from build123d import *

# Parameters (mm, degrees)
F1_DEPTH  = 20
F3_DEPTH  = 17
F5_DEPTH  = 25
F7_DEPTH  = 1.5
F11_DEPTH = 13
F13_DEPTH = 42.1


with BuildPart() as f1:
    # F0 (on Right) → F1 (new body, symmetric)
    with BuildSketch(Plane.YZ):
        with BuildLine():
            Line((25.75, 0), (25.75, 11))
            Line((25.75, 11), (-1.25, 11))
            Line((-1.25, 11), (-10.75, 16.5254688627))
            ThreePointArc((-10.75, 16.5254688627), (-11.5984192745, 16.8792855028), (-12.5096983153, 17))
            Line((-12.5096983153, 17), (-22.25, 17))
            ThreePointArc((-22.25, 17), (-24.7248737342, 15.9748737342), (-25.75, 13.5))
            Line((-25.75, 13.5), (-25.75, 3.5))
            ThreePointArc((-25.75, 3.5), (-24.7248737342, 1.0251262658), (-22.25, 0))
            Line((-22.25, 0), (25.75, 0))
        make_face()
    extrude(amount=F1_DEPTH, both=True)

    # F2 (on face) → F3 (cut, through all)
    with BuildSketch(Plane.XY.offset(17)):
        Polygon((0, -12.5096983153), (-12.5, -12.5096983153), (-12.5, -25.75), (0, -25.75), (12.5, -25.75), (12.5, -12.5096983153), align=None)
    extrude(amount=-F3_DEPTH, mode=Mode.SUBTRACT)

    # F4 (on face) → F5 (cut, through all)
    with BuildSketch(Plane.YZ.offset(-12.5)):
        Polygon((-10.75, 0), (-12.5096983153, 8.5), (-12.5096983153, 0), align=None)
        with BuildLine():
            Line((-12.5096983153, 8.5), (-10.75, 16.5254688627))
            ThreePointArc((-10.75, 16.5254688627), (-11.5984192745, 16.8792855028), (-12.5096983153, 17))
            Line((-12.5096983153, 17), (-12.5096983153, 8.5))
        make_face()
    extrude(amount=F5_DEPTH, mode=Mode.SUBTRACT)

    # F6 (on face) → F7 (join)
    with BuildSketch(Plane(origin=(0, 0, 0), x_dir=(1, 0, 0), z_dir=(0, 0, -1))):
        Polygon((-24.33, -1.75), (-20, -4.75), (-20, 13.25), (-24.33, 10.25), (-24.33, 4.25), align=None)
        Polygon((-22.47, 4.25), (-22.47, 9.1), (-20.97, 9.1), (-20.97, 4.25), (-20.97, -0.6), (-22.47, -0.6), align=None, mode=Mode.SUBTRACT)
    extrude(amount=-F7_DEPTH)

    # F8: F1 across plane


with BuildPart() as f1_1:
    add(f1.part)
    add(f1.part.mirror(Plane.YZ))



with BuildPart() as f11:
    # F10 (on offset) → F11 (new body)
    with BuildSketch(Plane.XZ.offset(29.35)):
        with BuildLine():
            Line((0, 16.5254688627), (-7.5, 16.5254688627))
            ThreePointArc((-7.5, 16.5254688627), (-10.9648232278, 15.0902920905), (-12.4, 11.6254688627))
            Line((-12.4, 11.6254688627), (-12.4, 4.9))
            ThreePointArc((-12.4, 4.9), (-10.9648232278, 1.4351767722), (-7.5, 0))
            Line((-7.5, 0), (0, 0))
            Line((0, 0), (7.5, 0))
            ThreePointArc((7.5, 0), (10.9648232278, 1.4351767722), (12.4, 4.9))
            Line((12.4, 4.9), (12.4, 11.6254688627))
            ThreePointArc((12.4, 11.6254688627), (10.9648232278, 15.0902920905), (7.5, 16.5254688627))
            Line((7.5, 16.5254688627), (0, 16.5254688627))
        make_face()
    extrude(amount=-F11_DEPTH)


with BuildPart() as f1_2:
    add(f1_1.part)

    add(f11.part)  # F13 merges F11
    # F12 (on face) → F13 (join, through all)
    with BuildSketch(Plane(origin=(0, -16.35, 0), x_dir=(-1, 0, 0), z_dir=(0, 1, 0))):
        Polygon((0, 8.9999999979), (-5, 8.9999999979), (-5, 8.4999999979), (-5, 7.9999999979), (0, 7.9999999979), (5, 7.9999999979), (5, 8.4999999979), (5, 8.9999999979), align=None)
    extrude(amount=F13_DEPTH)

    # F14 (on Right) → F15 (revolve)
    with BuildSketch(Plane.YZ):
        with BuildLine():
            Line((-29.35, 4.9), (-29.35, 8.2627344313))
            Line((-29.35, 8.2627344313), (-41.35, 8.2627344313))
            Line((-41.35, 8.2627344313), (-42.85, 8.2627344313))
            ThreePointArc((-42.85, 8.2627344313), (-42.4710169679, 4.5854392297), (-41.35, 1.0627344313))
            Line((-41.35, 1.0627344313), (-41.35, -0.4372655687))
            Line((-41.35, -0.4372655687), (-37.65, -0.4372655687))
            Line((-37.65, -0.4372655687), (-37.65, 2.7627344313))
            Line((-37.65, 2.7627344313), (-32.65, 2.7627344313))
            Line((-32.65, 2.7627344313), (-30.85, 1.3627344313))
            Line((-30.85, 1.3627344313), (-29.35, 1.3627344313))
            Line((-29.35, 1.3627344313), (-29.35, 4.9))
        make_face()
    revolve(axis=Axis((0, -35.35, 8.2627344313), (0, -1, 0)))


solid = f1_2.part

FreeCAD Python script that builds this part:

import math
import FreeCAD as App
import Part
import Sketcher
from FreeCAD import Vector
Q = App.Units.Quantity

doc = App.newDocument("Part")
params = doc.addObject("Spreadsheet::Sheet", "Params")
for row, (alias, value) in enumerate([
    ("sketch1_radius", "3.5 mm"),
    ("sketch1_width", "27 mm"),
    ("sketch1_width2", "48 mm"),
    ("sketch1_height", "11 mm"),
    ("sketch1_height2", "10 mm"),
    ("pad1_length", "40 mm"),
    ("sketch2_width", "25 mm"),
    ("sketch3_radius", "3.5 mm"),
    ("sketch3_height", "8.5 mm"),
    ("pocket2_length", "25 mm"),
    ("sketch4_height", "18 mm"),
    ("sketch4_height2", "12 mm"),
    ("sketch4_width", "1.5 mm"),
    ("sketch4_height3", "9.7 mm"),
    ("pad2_length", "1.5 mm"),
    ("sketch5_radius", "4.9 mm"),
    ("sketch5_width", "15 mm"),
    ("pad3_length", "13 mm"),
    ("sketch6_width", "10 mm"),
    ("sketch6_height", "1 mm"),
    ("sketch7_width", "5 mm"),
    ("sketch7_radius", "18.03 mm"),
    ("sketch7_width2", "13.5 mm"),
    ("sketch7_width3", "3.7 mm"),
    ("sketch7_width4", "1.5 mm"),
    ("revolution_angle", "360 deg"),
], start=1):
    params.set(f"A{row}", alias)
    params.set(f"B{row}", "=" + value)
    params.setAlias(f"B{row}", alias)

body = doc.addObject("PartDesign::Body", "Body")

sketch1 = body.newObject("Sketcher::SketchObject", "Sketch")
sketch1.AttachmentSupport = (doc.getObject("YZ_Plane"), [""])
sketch1.MapMode = "FlatFace"
sketch1.addGeometry([
    Part.LineSegment(Vector(25.8, 0, 0), Vector(25.8, 11, 0)),
    Part.LineSegment(Vector(25.8, 11, 0), Vector(-1.2, 11, 0)),
    Part.LineSegment(Vector(-1.2, 11, 0), Vector(-10.8, 16.5, 0)),
    Part.ArcOfCircle(Part.Circle(Vector(-12.5, 13.5, 0), Vector(0, 0, 1), 3.5), math.radians(60), math.radians(90)),
    Part.LineSegment(Vector(-12.5, 17, 0), Vector(-22.2, 17, 0)),
    Part.ArcOfCircle(Part.Circle(Vector(-22.2, 13.5, 0), Vector(0, 0, 1), 3.5), math.radians(90), math.radians(180)),
    Part.LineSegment(Vector(-25.8, 13.5, 0), Vector(-25.8, 3.5, 0)),
    Part.ArcOfCircle(Part.Circle(Vector(-22.2, 3.5, 0), Vector(0, 0, 1), 3.5), math.radians(180), math.radians(270)),
    Part.LineSegment(Vector(-22.2, 0, 0), Vector(25.8, 0, 0)),
], False)
sketch1.addConstraint([
    Sketcher.Constraint("Coincident", 0, 2, 1, 1),
    Sketcher.Constraint("Coincident", 1, 2, 2, 1),
    Sketcher.Constraint("Tangent", 2, 2, 3, 1),
    Sketcher.Constraint("Tangent", 3, 2, 4, 1),
    Sketcher.Constraint("Tangent", 4, 2, 5, 1),
    Sketcher.Constraint("Tangent", 5, 2, 6, 1),
    Sketcher.Constraint("Tangent", 6, 2, 7, 1),
    Sketcher.Constraint("Tangent", 7, 2, 8, 1),
    Sketcher.Constraint("Coincident", 8, 2, 0, 1),
    Sketcher.Constraint("Vertical", 0),
    Sketcher.Constraint("Horizontal", 1),
    Sketcher.Constraint("Horizontal", 4),
    Sketcher.Constraint("Vertical", 6),
    Sketcher.Constraint("Horizontal", 8),
    Sketcher.Constraint("Equal", 3, 5),
    Sketcher.Constraint("Equal", 5, 7),
    Sketcher.Constraint("PointOnObject", 7, 2, -1),
    Sketcher.Constraint("Radius", 3, Q("3.5 mm")),
    Sketcher.Constraint("DistanceX", 1, 2, 1, 1, Q("27 mm")),
    Sketcher.Constraint("DistanceX", 8, 1, 8, 2, Q("48 mm")),
    Sketcher.Constraint("DistanceY", 0, 1, 0, 2, Q("11 mm")),
    Sketcher.Constraint("DistanceY", 6, 2, 6, 1, Q("10 mm")),
    Sketcher.Constraint("DistanceX", 2, 2, 1, 2, Q("9.5 mm")),
    Sketcher.Constraint("DistanceX", 5, 3, -1, 1, Q("22.25 mm")),
])
sketch1.setExpression("Constraints[17]", "Params.sketch1_radius")
sketch1.setExpression("Constraints[18]", "Params.sketch1_width")
sketch1.setExpression("Constraints[19]", "Params.sketch1_width2")
sketch1.setExpression("Constraints[20]", "Params.sketch1_height")
sketch1.setExpression("Constraints[21]", "Params.sketch1_height2")
pad1 = body.newObject("PartDesign::Pad", "Pad")
pad1.Profile = sketch1
pad1.setExpression("Length", "Params.pad1_length")
pad1.Midplane = True

sketch2 = body.newObject("Sketcher::SketchObject", "Sketch001")
sketch2.AttachmentSupport = (doc.getObject("XY_Plane"), [""])
sketch2.MapMode = "FlatFace"
sketch2.AttachmentOffset = App.Placement(Vector(0, 0, 17), App.Rotation())
sketch2.addGeometry([
    Part.LineSegment(Vector(-12, -13, 0), Vector(-12, -26, 0)),
    Part.LineSegment(Vector(-12, -26, 0), Vector(12, -26, 0)),
    Part.LineSegment(Vector(12, -26, 0), Vector(12, -13, 0)),
    Part.LineSegment(Vector(12, -13, 0), Vector(-12, -13, 0)),
], False)
sketch2.addConstraint([
    Sketcher.Constraint("Coincident", 0, 2, 1, 1),
    Sketcher.Constraint("Coincident", 1, 2, 2, 1),
    Sketcher.Constraint("Coincident", 2, 2, 3, 1),
    Sketcher.Constraint("Coincident", 3, 2, 0, 1),
    Sketcher.Constraint("Vertical", 0),
    Sketcher.Constraint("Horizontal", 1),
    Sketcher.Constraint("Vertical", 2),
    Sketcher.Constraint("Horizontal", 3),
    Sketcher.Constraint("DistanceX", 1, 1, 1, 2, Q("25 mm")),
    Sketcher.Constraint("DistanceX", 0, 2, -1, 1, Q("12.5 mm")),
    Sketcher.Constraint("DistanceY", 0, 2, -1, 1, Q("25.75 mm")),
    Sketcher.Constraint("DistanceY", 0, 2, 0, 1, Q("13.240302 mm")),
])
sketch2.setExpression("Constraints[8]", "Params.sketch2_width")
pocket1 = body.newObject("PartDesign::Pocket", "Pocket")
pocket1.Profile = sketch2
pocket1.Type = "ThroughAll"

sketch3 = body.newObject("Sketcher::SketchObject", "Sketch002")
sketch3.AttachmentSupport = (doc.getObject("YZ_Plane"), [""])
sketch3.MapMode = "FlatFace"
sketch3.AttachmentOffset = App.Placement(Vector(0, 0, -12.5), App.Rotation())
sketch3.addGeometry([
    Part.LineSegment(Vector(-10.8, 0, 0), Vector(-12.5, 8.5, 0)),
    Part.LineSegment(Vector(-12.5, 8.5, 0), Vector(-12.5, 0, 0)),
    Part.LineSegment(Vector(-12.5, 0, 0), Vector(-10.8, 0, 0)),
    Part.LineSegment(Vector(-12.5, 8.5, 0), Vector(-10.8, 16.5, 0)),
    Part.ArcOfCircle(Part.Circle(Vector(-12.5, 13.5, 0), Vector(0, 0, 1), 3.5), math.radians(60), math.radians(90)),
    Part.LineSegment(Vector(-12.5, 17, 0), Vector(-12.5, 8.5, 0)),
], False)
sketch3.addConstraint([
    Sketcher.Constraint("Coincident", 0, 2, 1, 1),
    Sketcher.Constraint("Coincident", 1, 2, 2, 1),
    Sketcher.Constraint("Coincident", 2, 2, 0, 1),
    Sketcher.Constraint("Coincident", 3, 2, 4, 1),
    Sketcher.Constraint("Coincident", 4, 2, 5, 1),
    Sketcher.Constraint("Coincident", 5, 2, 3, 1),
    Sketcher.Constraint("Vertical", 1),
    Sketcher.Constraint("Horizontal", 2),
    Sketcher.Constraint("Vertical", 5),
    Sketcher.Constraint("Coincident", 5, 2, 0, 2),
    Sketcher.Constraint("PointOnObject", 1, 2, -1),
    Sketcher.Constraint("Vertical", 4, 3, 0, 2),
    Sketcher.Constraint("Vertical", 2, 2, 3, 2),
    Sketcher.Constraint("Equal", 1, 5),
    Sketcher.Constraint("Radius", 4, Q("3.5 mm")),
    Sketcher.Constraint("DistanceY", 1, 2, 1, 1, Q("8.5 mm")),
    Sketcher.Constraint("DistanceX", 2, 2, -1, 1, Q("10.75 mm")),
    Sketcher.Constraint("DistanceX", 2, 1, 2, 2, Q("1.759698 mm")),
])
sketch3.setExpression("Constraints[14]", "Params.sketch3_radius")
sketch3.setExpression("Constraints[15]", "Params.sketch3_height")
pocket2 = body.newObject("PartDesign::Pocket", "Pocket001")
pocket2.Profile = sketch3
pocket2.setExpression("Length", "Params.pocket2_length")
pocket2.Reversed = True

sketch4 = body.newObject("Sketcher::SketchObject", "Sketch003")
sketch4.AttachmentSupport = (doc.getObject("XY_Plane"), [""])
sketch4.MapMode = "FlatFace"
sketch4.addGeometry([
    Part.LineSegment(Vector(-24.3, 1.8, 0), Vector(-20, 4.8, 0)),
    Part.LineSegment(Vector(-20, 4.8, 0), Vector(-20, -13.2, 0)),
    Part.LineSegment(Vector(-20, -13.2, 0), Vector(-24.3, -10.2, 0)),
    Part.LineSegment(Vector(-24.3, -10.2, 0), Vector(-24.3, 1.8, 0)),
    Part.LineSegment(Vector(-22.5, 0.6, 0), Vector(-22.5, -9.1, 0)),
    Part.LineSegment(Vector(-22.5, -9.1, 0), Vector(-21, -9.1, 0)),
    Part.LineSegment(Vector(-21, -9.1, 0), Vector(-21, 0.6, 0)),
    Part.LineSegment(Vector(-21, 0.6, 0), Vector(-22.5, 0.6, 0)),
], False)
sketch4.addConstraint([
    Sketcher.Constraint("Coincident", 0, 2, 1, 1),
    Sketcher.Constraint("Coincident", 1, 2, 2, 1),
    Sketcher.Constraint("Coincident", 2, 2, 3, 1),
    Sketcher.Constraint("Coincident", 3, 2, 0, 1),
    Sketcher.Constraint("Coincident", 4, 2, 5, 1),
    Sketcher.Constraint("Coincident", 5, 2, 6, 1),
    Sketcher.Constraint("Coincident", 6, 2, 7, 1),
    Sketcher.Constraint("Coincident", 7, 2, 4, 1),
    Sketcher.Constraint("Vertical", 1),
    Sketcher.Constraint("Vertical", 3),
    Sketcher.Constraint("Vertical", 4),
    Sketcher.Constraint("Horizontal", 5),
    Sketcher.Constraint("Vertical", 6),
    Sketcher.Constraint("Horizontal", 7),
    Sketcher.Constraint("Equal", 0, 2),
    Sketcher.Constraint("DistanceY", 1, 2, 1, 1, Q("18 mm")),
    Sketcher.Constraint("DistanceY", 3, 1, 3, 2, Q("12 mm")),
    Sketcher.Constraint("DistanceX", 5, 1, 5, 2, Q("1.5 mm")),
    Sketcher.Constraint("DistanceY", 4, 2, 4, 1, Q("9.7 mm")),
    Sketcher.Constraint("DistanceX", 0, 2, -1, 1, Q("20 mm")),
    Sketcher.Constraint("DistanceY", 4, 2, -1, 1, Q("9.1 mm")),
    Sketcher.Constraint("DistanceY", -1, 1, 0, 2, Q("4.75 mm")),
    Sketcher.Constraint("DistanceX", 2, 2, -1, 1, Q("24.33 mm")),
    Sketcher.Constraint("DistanceX", 4, 2, -1, 1, Q("22.47 mm")),
])
sketch4.setExpression("Constraints[15]", "Params.sketch4_height")
sketch4.setExpression("Constraints[16]", "Params.sketch4_height2")
sketch4.setExpression("Constraints[17]", "Params.sketch4_width")
sketch4.setExpression("Constraints[18]", "Params.sketch4_height3")
pad2 = body.newObject("PartDesign::Pad", "Pad001")
pad2.Profile = sketch4
pad2.setExpression("Length", "Params.pad2_length")
body2 = doc.addObject("PartDesign::Body", "Body001")
doc.recompute()

body2.BaseFeature = body
doc.recompute()

mirroring = doc.addObject("Part::Mirroring", "Mirroring")
mirroring.Source = body
mirroring.Base = Vector(0, 0, 0)
mirroring.Normal = Vector(1, 0, 0)
body3 = doc.addObject("PartDesign::Body", "Body002")
body3.BaseFeature = mirroring
boolean = body2.newObject("PartDesign::Boolean", "Boolean")
boolean.Type = "Fuse"
boolean.addObjects([body3])
doc.recompute()
body4 = doc.addObject("PartDesign::Body", "Body003")

sketch5 = body4.newObject("Sketcher::SketchObject", "Sketch004")
sketch5.AttachmentSupport = (doc.getObject("XZ_Plane003"), [""])
sketch5.MapMode = "FlatFace"
sketch5.AttachmentOffset = App.Placement(Vector(0, 0, 29.35), App.Rotation())
sketch5.addGeometry([
    Part.ArcOfCircle(Part.Circle(Vector(-7.5, 11.6, 0), Vector(0, 0, 1), 4.9), math.radians(90), math.radians(180)),
    Part.LineSegment(Vector(-12.4, 11.6, 0), Vector(-12.4, 4.9, 0)),
    Part.ArcOfCircle(Part.Circle(Vector(-7.5, 4.9, 0), Vector(0, 0, 1), 4.9), math.radians(180), math.radians(270)),
    Part.LineSegment(Vector(-7.5, 0, 0), Vector(7.5, 0, 0)),
    Part.ArcOfCircle(Part.Circle(Vector(7.5, 4.9, 0), Vector(0, 0, 1), 4.9), math.radians(-90), math.radians(0)),
    Part.LineSegment(Vector(12.4, 4.9, 0), Vector(12.4, 11.6, 0)),
    Part.ArcOfCircle(Part.Circle(Vector(7.5, 11.6, 0), Vector(0, 0, 1), 4.9), math.radians(0), math.radians(90)),
    Part.LineSegment(Vector(7.5, 16.5, 0), Vector(-7.5, 16.5, 0)),
], False)
sketch5.addConstraint([
    Sketcher.Constraint("Tangent", 0, 2, 1, 1),
    Sketcher.Constraint("Tangent", 1, 2, 2, 1),
    Sketcher.Constraint("Tangent", 2, 2, 3, 1),
    Sketcher.Constraint("Tangent", 3, 2, 4, 1),
    Sketcher.Constraint("Tangent", 4, 2, 5, 1),
    Sketcher.Constraint("Tangent", 5, 2, 6, 1),
    Sketcher.Constraint("Tangent", 6, 2, 7, 1),
    Sketcher.Constraint("Tangent", 7, 2, 0, 1),
    Sketcher.Constraint("Vertical", 1),
    Sketcher.Constraint("Horizontal", 3),
    Sketcher.Constraint("Vertical", 5),
    Sketcher.Constraint("Horizontal", 7),
    Sketcher.Constraint("Equal", 0, 2),
    Sketcher.Constraint("Equal", 2, 4),
    Sketcher.Constraint("Equal", 4, 6),
    Sketcher.Constraint("Symmetric", 2, 2, 3, 2, -1, 1),
    Sketcher.Constraint("Radius", 0, Q("4.9 mm")),
    Sketcher.Constraint("DistanceX", 3, 1, 3, 2, Q("15 mm")),
    Sketcher.Constraint("DistanceY", 1, 2, 1, 1, Q("6.725469 mm")),
])
sketch5.setExpression("Constraints[16]", "Params.sketch5_radius")
sketch5.setExpression("Constraints[17]", "Params.sketch5_width")
pad3 = body4.newObject("PartDesign::Pad", "Pad002")
pad3.Profile = sketch5
pad3.setExpression("Length", "Params.pad3_length")
pad3.Reversed = True
body2.AllowCompound = True
doc.recompute()

boolean2 = body2.newObject("PartDesign::Boolean", "Boolean001")
boolean2.Type = "Fuse"
boolean2.addObjects([body4])

sketch6 = body2.newObject("Sketcher::SketchObject", "Sketch005")
sketch6.AttachmentSupport = (doc.getObject("XZ_Plane001"), [""])
sketch6.MapMode = "FlatFace"
sketch6.AttachmentOffset = App.Placement(Vector(0, 0, 16.35), App.Rotation())
sketch6.addGeometry([
    Part.LineSegment(Vector(5, 9, 0), Vector(5, 8, 0)),
    Part.LineSegment(Vector(5, 8, 0), Vector(-5, 8, 0)),
    Part.LineSegment(Vector(-5, 8, 0), Vector(-5, 9, 0)),
    Part.LineSegment(Vector(-5, 9, 0), Vector(5, 9, 0)),
], False)
sketch6.addConstraint([
    Sketcher.Constraint("Coincident", 0, 2, 1, 1),
    Sketcher.Constraint("Coincident", 1, 2, 2, 1),
    Sketcher.Constraint("Coincident", 2, 2, 3, 1),
    Sketcher.Constraint("Coincident", 3, 2, 0, 1),
    Sketcher.Constraint("Vertical", 0),
    Sketcher.Constraint("Horizontal", 1),
    Sketcher.Constraint("Vertical", 2),
    Sketcher.Constraint("Horizontal", 3),
    Sketcher.Constraint("DistanceX", 1, 2, 1, 1, Q("10 mm")),
    Sketcher.Constraint("DistanceY", 0, 2, 0, 1, Q("1 mm")),
    Sketcher.Constraint("DistanceX", -1, 1, 0, 2, Q("5 mm")),
    Sketcher.Constraint("DistanceY", -1, 1, 0, 2, Q("8 mm")),
])
sketch6.setExpression("Constraints[8]", "Params.sketch6_width")
sketch6.setExpression("Constraints[9]", "Params.sketch6_height")
pad4 = body2.newObject("PartDesign::Pad", "Pad003")
pad4.Profile = sketch6
pad4.Type = "UpToLast"
pad4.Reversed = True

sketch7 = body2.newObject("Sketcher::SketchObject", "Sketch006")
sketch7.AttachmentSupport = (doc.getObject("YZ_Plane001"), [""])
sketch7.MapMode = "FlatFace"
sketch7.addGeometry([
    Part.LineSegment(Vector(-29.4, 8.3, 0), Vector(-42.9, 8.3, 0)),
    Part.ArcOfCircle(Part.Circle(Vector(-24.8, 8.3, 0), Vector(0, 0, 1), 18), math.radians(180), math.radians(204)),
    Part.LineSegment(Vector(-41.4, 1.1, 0), Vector(-41.4, -0.4, 0)),
    Part.LineSegment(Vector(-41.4, -0.4, 0), Vector(-37.6, -0.4, 0)),
    Part.LineSegment(Vector(-37.6, -0.4, 0), Vector(-37.6, 2.8, 0)),
    Part.LineSegment(Vector(-37.6, 2.8, 0), Vector(-32.6, 2.8, 0)),
    Part.LineSegment(Vector(-32.6, 2.8, 0), Vector(-30.9, 1.4, 0)),
    Part.LineSegment(Vector(-30.9, 1.4, 0), Vector(-29.4, 1.4, 0)),
    Part.LineSegment(Vector(-29.4, 1.4, 0), Vector(-29.4, 8.3, 0)),
], False)
sketch7.addGeometry(Part.LineSegment(Vector(-24.8, 8.3, 0), Vector(-42.9, 8.3, 0)), True)
sketch7.addConstraint([
    Sketcher.Constraint("Coincident", 0, 2, 1, 1),
    Sketcher.Constraint("Coincident", 1, 2, 2, 1),
    Sketcher.Constraint("Coincident", 2, 2, 3, 1),
    Sketcher.Constraint("Coincident", 3, 2, 4, 1),
    Sketcher.Constraint("Coincident", 4, 2, 5, 1),
    Sketcher.Constraint("Coincident", 5, 2, 6, 1),
    Sketcher.Constraint("Coincident", 6, 2, 7, 1),
    Sketcher.Constraint("Coincident", 7, 2, 8, 1),
    Sketcher.Constraint("Coincident", 8, 2, 0, 1),
    Sketcher.Constraint("Horizontal", 0),
    Sketcher.Constraint("Vertical", 2),
    Sketcher.Constraint("Horizontal", 3),
    Sketcher.Constraint("Vertical", 4),
    Sketcher.Constraint("Horizontal", 5),
    Sketcher.Constraint("Horizontal", 7),
    Sketcher.Constraint("Vertical", 8),
    Sketcher.Constraint("Horizontal", 9),
    Sketcher.Constraint("Coincident", 9, 1, 1, 3),
    Sketcher.Constraint("Coincident", 9, 2, 0, 2),
    Sketcher.Constraint("Equal", 7, 2),
    Sketcher.Constraint("DistanceX", 5, 1, 5, 2, Q("5 mm")),
    Sketcher.Constraint("Radius", 1, Q("18.03 mm")),
    Sketcher.Constraint("DistanceX", 0, 2, 0, 1, Q("13.5 mm")),
    Sketcher.Constraint("DistanceX", 3, 1, 3, 2, Q("3.7 mm")),
    Sketcher.Constraint("DistanceX", 7, 1, 7, 2, Q("1.5 mm")),
    Sketcher.Constraint("DistanceY", 4, 1, 4, 2, Q("3.2 mm")),
    Sketcher.Constraint("DistanceY", 8, 1, 8, 2, Q("6.9 mm")),
    Sketcher.Constraint("DistanceX", 0, 2, 1, 2, Q("1.5 mm")),
    Sketcher.Constraint("DistanceX", 1, 3, -1, 1, Q("24.82 mm")),
    Sketcher.Constraint("DistanceY", -1, 1, 1, 3, Q("8.262734 mm")),
])
sketch7.setExpression("Constraints[20]", "Params.sketch7_width")
sketch7.setExpression("Constraints[21]", "Params.sketch7_radius")
sketch7.setExpression("Constraints[22]", "Params.sketch7_width2")
sketch7.setExpression("Constraints[23]", "Params.sketch7_width3")
sketch7.setExpression("Constraints[24]", "Params.sketch7_width4")
revolution = body2.newObject("PartDesign::Revolution", "Revolution")
revolution.Profile = sketch7
revolution.ReferenceAxis = (sketch7, ["Axis0"])
revolution.setExpression("Angle", "Params.revolution_angle")
mirroring.Visibility = False

doc.recompute()
